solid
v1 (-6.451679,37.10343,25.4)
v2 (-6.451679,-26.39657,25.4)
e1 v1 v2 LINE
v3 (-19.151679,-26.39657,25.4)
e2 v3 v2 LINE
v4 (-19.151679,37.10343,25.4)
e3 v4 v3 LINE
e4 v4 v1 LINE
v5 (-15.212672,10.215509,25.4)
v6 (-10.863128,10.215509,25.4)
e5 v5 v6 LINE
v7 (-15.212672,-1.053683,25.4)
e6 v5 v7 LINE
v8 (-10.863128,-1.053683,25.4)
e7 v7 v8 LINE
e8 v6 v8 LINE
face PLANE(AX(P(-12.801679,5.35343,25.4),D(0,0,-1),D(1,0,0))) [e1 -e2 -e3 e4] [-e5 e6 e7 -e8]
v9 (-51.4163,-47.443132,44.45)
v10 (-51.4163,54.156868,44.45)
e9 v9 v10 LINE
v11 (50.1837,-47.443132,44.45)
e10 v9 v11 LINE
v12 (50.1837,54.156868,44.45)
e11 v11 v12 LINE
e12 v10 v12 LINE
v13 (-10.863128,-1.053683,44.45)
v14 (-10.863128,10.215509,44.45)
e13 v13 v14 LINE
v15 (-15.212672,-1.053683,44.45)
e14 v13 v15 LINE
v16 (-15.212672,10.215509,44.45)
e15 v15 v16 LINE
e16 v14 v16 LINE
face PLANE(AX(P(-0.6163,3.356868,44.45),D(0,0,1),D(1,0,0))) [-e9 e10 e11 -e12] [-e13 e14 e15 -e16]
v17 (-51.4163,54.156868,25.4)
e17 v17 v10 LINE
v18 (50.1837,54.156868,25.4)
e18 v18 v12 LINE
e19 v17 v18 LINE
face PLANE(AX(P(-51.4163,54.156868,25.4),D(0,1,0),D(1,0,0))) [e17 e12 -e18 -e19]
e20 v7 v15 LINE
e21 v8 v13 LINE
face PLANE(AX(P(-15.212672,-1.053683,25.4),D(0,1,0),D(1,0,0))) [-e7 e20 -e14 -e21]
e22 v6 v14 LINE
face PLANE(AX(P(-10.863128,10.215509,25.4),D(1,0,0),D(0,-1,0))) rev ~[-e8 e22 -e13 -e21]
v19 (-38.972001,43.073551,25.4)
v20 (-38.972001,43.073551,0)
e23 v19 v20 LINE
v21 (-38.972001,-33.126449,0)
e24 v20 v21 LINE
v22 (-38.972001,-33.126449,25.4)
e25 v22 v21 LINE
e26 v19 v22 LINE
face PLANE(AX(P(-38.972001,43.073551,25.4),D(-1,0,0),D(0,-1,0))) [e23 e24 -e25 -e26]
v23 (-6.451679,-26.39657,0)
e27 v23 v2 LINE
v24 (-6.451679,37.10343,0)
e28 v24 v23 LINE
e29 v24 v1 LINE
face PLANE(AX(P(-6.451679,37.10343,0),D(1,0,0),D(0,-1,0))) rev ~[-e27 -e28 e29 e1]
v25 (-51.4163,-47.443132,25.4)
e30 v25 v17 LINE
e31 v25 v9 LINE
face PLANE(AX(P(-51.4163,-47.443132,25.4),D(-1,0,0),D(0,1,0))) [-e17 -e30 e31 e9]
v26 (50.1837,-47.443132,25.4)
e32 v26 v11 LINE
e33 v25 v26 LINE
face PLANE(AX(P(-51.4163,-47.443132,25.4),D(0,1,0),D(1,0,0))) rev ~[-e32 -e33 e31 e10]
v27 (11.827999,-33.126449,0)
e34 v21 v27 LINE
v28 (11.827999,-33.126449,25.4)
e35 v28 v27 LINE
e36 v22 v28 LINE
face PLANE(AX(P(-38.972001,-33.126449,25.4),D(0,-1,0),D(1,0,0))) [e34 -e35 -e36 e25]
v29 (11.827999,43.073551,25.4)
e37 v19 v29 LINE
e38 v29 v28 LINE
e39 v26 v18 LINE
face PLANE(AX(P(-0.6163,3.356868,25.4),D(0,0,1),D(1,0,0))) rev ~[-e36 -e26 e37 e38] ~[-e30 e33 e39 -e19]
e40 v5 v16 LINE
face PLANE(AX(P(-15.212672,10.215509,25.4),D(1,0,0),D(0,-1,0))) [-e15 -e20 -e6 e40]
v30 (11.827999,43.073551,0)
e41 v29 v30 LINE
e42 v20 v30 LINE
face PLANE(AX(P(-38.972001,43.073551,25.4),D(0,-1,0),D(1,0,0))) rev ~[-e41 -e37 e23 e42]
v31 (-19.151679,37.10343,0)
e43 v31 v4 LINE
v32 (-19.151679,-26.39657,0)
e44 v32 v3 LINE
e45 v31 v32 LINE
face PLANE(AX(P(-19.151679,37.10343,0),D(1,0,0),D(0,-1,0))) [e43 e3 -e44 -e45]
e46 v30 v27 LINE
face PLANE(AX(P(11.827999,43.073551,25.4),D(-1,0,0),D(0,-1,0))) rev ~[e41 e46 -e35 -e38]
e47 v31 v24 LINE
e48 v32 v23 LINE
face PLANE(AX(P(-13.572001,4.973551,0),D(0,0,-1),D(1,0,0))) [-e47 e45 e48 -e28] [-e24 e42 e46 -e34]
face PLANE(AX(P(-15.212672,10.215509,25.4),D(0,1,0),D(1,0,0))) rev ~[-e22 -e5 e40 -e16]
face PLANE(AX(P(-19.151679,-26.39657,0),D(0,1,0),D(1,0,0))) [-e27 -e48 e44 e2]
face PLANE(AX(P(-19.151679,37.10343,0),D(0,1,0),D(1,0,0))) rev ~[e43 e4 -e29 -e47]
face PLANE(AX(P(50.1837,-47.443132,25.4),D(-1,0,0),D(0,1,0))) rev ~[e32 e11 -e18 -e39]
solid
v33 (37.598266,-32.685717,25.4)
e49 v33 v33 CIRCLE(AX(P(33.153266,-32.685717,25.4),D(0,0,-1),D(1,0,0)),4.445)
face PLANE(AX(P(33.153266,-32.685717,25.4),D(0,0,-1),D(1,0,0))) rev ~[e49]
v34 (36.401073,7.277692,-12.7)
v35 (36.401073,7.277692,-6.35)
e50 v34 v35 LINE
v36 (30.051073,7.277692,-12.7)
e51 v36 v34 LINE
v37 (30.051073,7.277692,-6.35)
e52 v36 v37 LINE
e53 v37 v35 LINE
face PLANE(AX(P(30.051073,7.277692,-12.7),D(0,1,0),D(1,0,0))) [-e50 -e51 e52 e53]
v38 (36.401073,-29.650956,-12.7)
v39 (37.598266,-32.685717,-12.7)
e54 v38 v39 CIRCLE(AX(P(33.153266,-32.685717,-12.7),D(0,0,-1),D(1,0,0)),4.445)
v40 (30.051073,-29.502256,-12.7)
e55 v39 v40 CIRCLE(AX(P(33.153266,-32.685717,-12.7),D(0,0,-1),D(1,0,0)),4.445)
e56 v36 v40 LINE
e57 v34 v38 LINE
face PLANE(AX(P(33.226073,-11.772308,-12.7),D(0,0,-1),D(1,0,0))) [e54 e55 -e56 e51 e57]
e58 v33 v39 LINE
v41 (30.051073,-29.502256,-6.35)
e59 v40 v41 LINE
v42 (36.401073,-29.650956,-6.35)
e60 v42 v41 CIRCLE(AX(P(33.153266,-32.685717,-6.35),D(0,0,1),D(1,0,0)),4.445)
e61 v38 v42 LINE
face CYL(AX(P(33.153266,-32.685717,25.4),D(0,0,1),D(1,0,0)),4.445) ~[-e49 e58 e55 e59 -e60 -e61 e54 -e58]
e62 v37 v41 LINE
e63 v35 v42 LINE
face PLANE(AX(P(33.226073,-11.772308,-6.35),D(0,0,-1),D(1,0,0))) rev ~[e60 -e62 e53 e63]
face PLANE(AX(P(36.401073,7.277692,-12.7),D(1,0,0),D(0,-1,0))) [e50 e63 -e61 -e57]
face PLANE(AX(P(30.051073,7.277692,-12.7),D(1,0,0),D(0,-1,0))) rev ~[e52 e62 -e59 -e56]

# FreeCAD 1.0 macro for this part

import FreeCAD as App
import Part
import Sketcher

V = App.Vector
Q = App.Units.Quantity

doc = App.newDocument("Part")
body = doc.addObject("PartDesign::Body", "Body")

# Sketch on XY plane
sketch1 = body.newObject("Sketcher::SketchObject", "Sketch")
sketch1.AttachmentSupport = (doc.getObject("XY_Plane"), [""])
sketch1.MapMode = "FlatFace"
sketch1.AttachmentOffset = App.Placement(V(0, 0, 1 * 25.4), App.Rotation())
sketch1.addGeometry([
    Part.LineSegment(V(-51.4163, 54.156868, 0), V(-51.4163, -47.443132, 0)),
    Part.LineSegment(V(-51.4163, -47.443132, 0), V(50.1837, -47.443132, 0)),
    Part.LineSegment(V(50.1837, -47.443132, 0), V(50.1837, 54.156868, 0)),
    Part.LineSegment(V(50.1837, 54.156868, 0), V(-51.4163, 54.156868, 0)),
], False)
sketch1.addConstraint([
    Sketcher.Constraint("Coincident", 0, 2, 1, 1),
    Sketcher.Constraint("Coincident", 1, 2, 2, 1),
    Sketcher.Constraint("Coincident", 2, 2, 3, 1),
    Sketcher.Constraint("Coincident", 3, 2, 0, 1),
    Sketcher.Constraint("Vertical", 0),
    Sketcher.Constraint("Horizontal", 1),
    Sketcher.Constraint("Vertical", 2),
    Sketcher.Constraint("Horizontal", 3),
    Sketcher.Constraint("Equal", 3, 0),
    Sketcher.Constraint("DistanceX", 1, 1, 1, 2, Q("4 in")),
    Sketcher.Constraint("DistanceX", 0, 2, -1, 1, Q("51.4163 mm")),
    Sketcher.Constraint("DistanceY", -1, 1, 2, 2, Q("54.156868 mm")),
])
pad1 = body.newObject("PartDesign::Pad", "Pad")
pad1.Profile = sketch1
pad1.Length = Q("0.75 in")

# Sketch on XY plane
sketch2 = body.newObject("Sketcher::SketchObject", "Sketch001")
sketch2.AttachmentSupport = (doc.getObject("XY_Plane"), [""])
sketch2.MapMode = "FlatFace"
sketch2.AttachmentOffset = App.Placement(V(0, 0, 1 * 25.4), App.Rotation())
sketch2.addGeometry([
    Part.LineSegment(V(-38.972001, -33.126449, 0), V(-38.972001, 43.073551, 0)),
    Part.LineSegment(V(-38.972001, 43.073551, 0), V(11.827999, 43.073551, 0)),
    Part.LineSegment(V(11.827999, 43.073551, 0), V(11.827999, -33.126449, 0)),
    Part.LineSegment(V(11.827999, -33.126449, 0), V(-38.972001, -33.126449, 0)),
], False)
sketch2.addConstraint([
    Sketcher.Constraint("Coincident", 0, 2, 1, 1),
    Sketcher.Constraint("Coincident", 1, 2, 2, 1),
    Sketcher.Constraint("Coincident", 2, 2, 3, 1),
    Sketcher.Constraint("Coincident", 3, 2, 0, 1),
    Sketcher.Constraint("Vertical", 0),
    Sketcher.Constraint("Horizontal", 1),
    Sketcher.Constraint("Vertical", 2),
    Sketcher.Constraint("Horizontal", 3),
    Sketcher.Constraint("DistanceX", 1, 1, 1, 2, Q("2 in")),
    Sketcher.Constraint("DistanceY", 0, 1, 0, 2, Q("3 in")),
    Sketcher.Constraint("DistanceX", 0, 2, -1, 1, Q("38.972001 mm")),
    Sketcher.Constraint("DistanceY", -1, 1, 0, 2, Q("43.073551 mm")),
])
pad2 = body.newObject("PartDesign::Pad", "Pad001")
pad2.Profile = sketch2
pad2.Length = Q("1 in")
pad2.Reversed = True

# Sketch on XY plane
sketch3 = body.newObject("Sketcher::SketchObject", "Sketch002")
sketch3.AttachmentSupport = (doc.getObject("XY_Plane"), [""])
sketch3.MapMode = "FlatFace"
sketch3.addGeometry([
    Part.LineSegment(V(-19.151679, -26.39657, 0), V(-19.151679, 37.10343, 0)),
    Part.LineSegment(V(-19.151679, 37.10343, 0), V(-6.451679, 37.10343, 0)),
    Part.LineSegment(V(-6.451679, 37.10343, 0), V(-6.451679, -26.39657, 0)),
    Part.LineSegment(V(-6.451679, -26.39657, 0), V(-19.151679, -26.39657, 0)),
], False)
sketch3.addConstraint([
    Sketcher.Constraint("Coincident", 0, 2, 1, 1),
    Sketcher.Constraint("Coincident", 1, 2, 2, 1),
    Sketcher.Constraint("Coincident", 2, 2, 3, 1),
    Sketcher.Constraint("Coincident", 3, 2, 0, 1),
    Sketcher.Constraint("Vertical", 0),
    Sketcher.Constraint("Horizontal", 1),
    Sketcher.Constraint("Vertical", 2),
    Sketcher.Constraint("Horizontal", 3),
    Sketcher.Constraint("DistanceX", 1, 1, 1, 2, Q("0.5 in")),
    Sketcher.Constraint("DistanceY", 0, 1, 0, 2, Q("2.5 in")),
    Sketcher.Constraint("DistanceX", 0, 2, -1, 1, Q("19.151679 mm")),
    Sketcher.Constraint("DistanceY", -1, 1, 0, 2, Q("37.10343 mm")),
])
pocket1 = body.newObject("PartDesign::Pocket", "Pocket")
pocket1.Profile = sketch3
pocket1.Length = Q("1 in")
pocket1.Reversed = True

# Sketch on XY plane
sketch4 = body.newObject("Sketcher::SketchObject", "Sketch003")
sketch4.AttachmentSupport = (doc.getObject("XY_Plane"), [""])
sketch4.MapMode = "FlatFace"
sketch4.AttachmentOffset = App.Placement(V(0, 0, 1 * 25.4), App.Rotation())
sketch4.addGeometry([
    Part.LineSegment(V(-15.212672, -1.053683, 0), V(-15.212672, 10.215509, 0)),
    Part.LineSegment(V(-15.212672, 10.215509, 0), V(-10.863128, 10.215509, 0)),
    Part.LineSegment(V(-10.863128, 10.215509, 0), V(-10.863128, -1.053683, 0)),
    Part.LineSegment(V(-10.863128, -1.053683, 0), V(-15.212672, -1.053683, 0)),
], False)
sketch4.addConstraint([
    Sketcher.Constraint("Coincident", 0, 2, 1, 1),
    Sketcher.Constraint("Coincident", 1, 2, 2, 1),
    Sketcher.Constraint("Coincident", 2, 2, 3, 1),
    Sketcher.Constraint("Coincident", 3, 2, 0, 1),
    Sketcher.Constraint("Vertical", 0),
    Sketcher.Constraint("Horizontal", 1),
    Sketcher.Constraint("Vertical", 2),
    Sketcher.Constraint("Horizontal", 3),
    Sketcher.Constraint("DistanceX", 1, 1, 1, 2, Q("4.349544 mm")),
    Sketcher.Constraint("DistanceY", 0, 1, 0, 2, Q("11.269192 mm")),
    Sketcher.Constraint("DistanceY", -1, 1, 0, 2, Q("10.215509 mm")),
    Sketcher.Constraint("DistanceX", 0, 2, -1, 1, Q("15.212672 mm")),
])
pocket2 = body.newObject("PartDesign::Pocket", "Pocket001")
pocket2.Profile = sketch4
pocket2.Length = Q("1 in")
pocket2.Reversed = True
body2 = doc.addObject("PartDesign::Body", "Body001")

# Sketch on XY plane
sketch5 = body2.newObject("Sketcher::SketchObject", "Sketch004")
sketch5.AttachmentSupport = (doc.getObject("XY_Plane001"), [""])
sketch5.MapMode = "FlatFace"
sketch5.AttachmentOffset = App.Placement(V(0, 0, 1 * 25.4), App.Rotation())
sketch5.addGeometry(Part.Circle(V(33.153266, -32.685717, 0), V(0, 0, 1), 4.445), False)
sketch5.addConstraint([
    Sketcher.Constraint("Diameter", 0, Q("0.35 in")),
    Sketcher.Constraint("DistanceX", -1, 1, 0, 3, Q("33.153266 mm")),
    Sketcher.Constraint("DistanceY", 0, 3, -1, 1, Q("32.685717 mm")),
])
pad3 = body2.newObject("PartDesign::Pad", "Pad002")
pad3.Profile = sketch5
pad3.Length = Q("1.5 in")
pad3.Reversed = True

# Sketch on XY plane
sketch6 = body2.newObject("Sketcher::SketchObject", "Sketch005")
sketch6.AttachmentSupport = (doc.getObject("XY_Plane001"), [""])
sketch6.MapMode = "FlatFace"
sketch6.AttachmentOffset = App.Placement(V(0, 0, -0.5 * 25.4), App.Rotation())
sketch6.addGeometry([
    Part.LineSegment(V(30.051073, -30.822308, 0), V(30.051073, 7.277692, 0)),
    Part.LineSegment(V(30.051073, 7.277692, 0), V(36.401073, 7.277692, 0)),
    Part.LineSegment(V(36.401073, 7.277692, 0), V(36.401073, -30.822308, 0)),
    Part.LineSegment(V(36.401073, -30.822308, 0), V(30.051073, -30.822308, 0)),
], False)
sketch6.addConstraint([
    Sketcher.Constraint("Coincident", 0, 2, 1, 1),
    Sketcher.Constraint("Coincident", 1, 2, 2, 1),
    Sketcher.Constraint("Coincident", 2, 2, 3, 1),
    Sketcher.Constraint("Coincident", 3, 2, 0, 1),
    Sketcher.Constraint("Vertical", 0),
    Sketcher.Constraint("Horizontal", 1),
    Sketcher.Constraint("Vertical", 2),
    Sketcher.Constraint("Horizontal", 3),
    Sketcher.Constraint("DistanceY", 0, 1, 0, 2, Q("1.5 in")),
    Sketcher.Constraint("DistanceX", 1, 1, 1, 2, Q("0.25 in")),
    Sketcher.Constraint("DistanceX", -1, 1, 0, 2, Q("30.051073 mm")),
    Sketcher.Constraint("DistanceY", -1, 1, 0, 2, Q("7.277692 mm")),
])
pad4 = body2.newObject("PartDesign::Pad", "Pad003")
pad4.Profile = sketch6
pad4.Length = Q("0.25 in")

doc.recompute()
